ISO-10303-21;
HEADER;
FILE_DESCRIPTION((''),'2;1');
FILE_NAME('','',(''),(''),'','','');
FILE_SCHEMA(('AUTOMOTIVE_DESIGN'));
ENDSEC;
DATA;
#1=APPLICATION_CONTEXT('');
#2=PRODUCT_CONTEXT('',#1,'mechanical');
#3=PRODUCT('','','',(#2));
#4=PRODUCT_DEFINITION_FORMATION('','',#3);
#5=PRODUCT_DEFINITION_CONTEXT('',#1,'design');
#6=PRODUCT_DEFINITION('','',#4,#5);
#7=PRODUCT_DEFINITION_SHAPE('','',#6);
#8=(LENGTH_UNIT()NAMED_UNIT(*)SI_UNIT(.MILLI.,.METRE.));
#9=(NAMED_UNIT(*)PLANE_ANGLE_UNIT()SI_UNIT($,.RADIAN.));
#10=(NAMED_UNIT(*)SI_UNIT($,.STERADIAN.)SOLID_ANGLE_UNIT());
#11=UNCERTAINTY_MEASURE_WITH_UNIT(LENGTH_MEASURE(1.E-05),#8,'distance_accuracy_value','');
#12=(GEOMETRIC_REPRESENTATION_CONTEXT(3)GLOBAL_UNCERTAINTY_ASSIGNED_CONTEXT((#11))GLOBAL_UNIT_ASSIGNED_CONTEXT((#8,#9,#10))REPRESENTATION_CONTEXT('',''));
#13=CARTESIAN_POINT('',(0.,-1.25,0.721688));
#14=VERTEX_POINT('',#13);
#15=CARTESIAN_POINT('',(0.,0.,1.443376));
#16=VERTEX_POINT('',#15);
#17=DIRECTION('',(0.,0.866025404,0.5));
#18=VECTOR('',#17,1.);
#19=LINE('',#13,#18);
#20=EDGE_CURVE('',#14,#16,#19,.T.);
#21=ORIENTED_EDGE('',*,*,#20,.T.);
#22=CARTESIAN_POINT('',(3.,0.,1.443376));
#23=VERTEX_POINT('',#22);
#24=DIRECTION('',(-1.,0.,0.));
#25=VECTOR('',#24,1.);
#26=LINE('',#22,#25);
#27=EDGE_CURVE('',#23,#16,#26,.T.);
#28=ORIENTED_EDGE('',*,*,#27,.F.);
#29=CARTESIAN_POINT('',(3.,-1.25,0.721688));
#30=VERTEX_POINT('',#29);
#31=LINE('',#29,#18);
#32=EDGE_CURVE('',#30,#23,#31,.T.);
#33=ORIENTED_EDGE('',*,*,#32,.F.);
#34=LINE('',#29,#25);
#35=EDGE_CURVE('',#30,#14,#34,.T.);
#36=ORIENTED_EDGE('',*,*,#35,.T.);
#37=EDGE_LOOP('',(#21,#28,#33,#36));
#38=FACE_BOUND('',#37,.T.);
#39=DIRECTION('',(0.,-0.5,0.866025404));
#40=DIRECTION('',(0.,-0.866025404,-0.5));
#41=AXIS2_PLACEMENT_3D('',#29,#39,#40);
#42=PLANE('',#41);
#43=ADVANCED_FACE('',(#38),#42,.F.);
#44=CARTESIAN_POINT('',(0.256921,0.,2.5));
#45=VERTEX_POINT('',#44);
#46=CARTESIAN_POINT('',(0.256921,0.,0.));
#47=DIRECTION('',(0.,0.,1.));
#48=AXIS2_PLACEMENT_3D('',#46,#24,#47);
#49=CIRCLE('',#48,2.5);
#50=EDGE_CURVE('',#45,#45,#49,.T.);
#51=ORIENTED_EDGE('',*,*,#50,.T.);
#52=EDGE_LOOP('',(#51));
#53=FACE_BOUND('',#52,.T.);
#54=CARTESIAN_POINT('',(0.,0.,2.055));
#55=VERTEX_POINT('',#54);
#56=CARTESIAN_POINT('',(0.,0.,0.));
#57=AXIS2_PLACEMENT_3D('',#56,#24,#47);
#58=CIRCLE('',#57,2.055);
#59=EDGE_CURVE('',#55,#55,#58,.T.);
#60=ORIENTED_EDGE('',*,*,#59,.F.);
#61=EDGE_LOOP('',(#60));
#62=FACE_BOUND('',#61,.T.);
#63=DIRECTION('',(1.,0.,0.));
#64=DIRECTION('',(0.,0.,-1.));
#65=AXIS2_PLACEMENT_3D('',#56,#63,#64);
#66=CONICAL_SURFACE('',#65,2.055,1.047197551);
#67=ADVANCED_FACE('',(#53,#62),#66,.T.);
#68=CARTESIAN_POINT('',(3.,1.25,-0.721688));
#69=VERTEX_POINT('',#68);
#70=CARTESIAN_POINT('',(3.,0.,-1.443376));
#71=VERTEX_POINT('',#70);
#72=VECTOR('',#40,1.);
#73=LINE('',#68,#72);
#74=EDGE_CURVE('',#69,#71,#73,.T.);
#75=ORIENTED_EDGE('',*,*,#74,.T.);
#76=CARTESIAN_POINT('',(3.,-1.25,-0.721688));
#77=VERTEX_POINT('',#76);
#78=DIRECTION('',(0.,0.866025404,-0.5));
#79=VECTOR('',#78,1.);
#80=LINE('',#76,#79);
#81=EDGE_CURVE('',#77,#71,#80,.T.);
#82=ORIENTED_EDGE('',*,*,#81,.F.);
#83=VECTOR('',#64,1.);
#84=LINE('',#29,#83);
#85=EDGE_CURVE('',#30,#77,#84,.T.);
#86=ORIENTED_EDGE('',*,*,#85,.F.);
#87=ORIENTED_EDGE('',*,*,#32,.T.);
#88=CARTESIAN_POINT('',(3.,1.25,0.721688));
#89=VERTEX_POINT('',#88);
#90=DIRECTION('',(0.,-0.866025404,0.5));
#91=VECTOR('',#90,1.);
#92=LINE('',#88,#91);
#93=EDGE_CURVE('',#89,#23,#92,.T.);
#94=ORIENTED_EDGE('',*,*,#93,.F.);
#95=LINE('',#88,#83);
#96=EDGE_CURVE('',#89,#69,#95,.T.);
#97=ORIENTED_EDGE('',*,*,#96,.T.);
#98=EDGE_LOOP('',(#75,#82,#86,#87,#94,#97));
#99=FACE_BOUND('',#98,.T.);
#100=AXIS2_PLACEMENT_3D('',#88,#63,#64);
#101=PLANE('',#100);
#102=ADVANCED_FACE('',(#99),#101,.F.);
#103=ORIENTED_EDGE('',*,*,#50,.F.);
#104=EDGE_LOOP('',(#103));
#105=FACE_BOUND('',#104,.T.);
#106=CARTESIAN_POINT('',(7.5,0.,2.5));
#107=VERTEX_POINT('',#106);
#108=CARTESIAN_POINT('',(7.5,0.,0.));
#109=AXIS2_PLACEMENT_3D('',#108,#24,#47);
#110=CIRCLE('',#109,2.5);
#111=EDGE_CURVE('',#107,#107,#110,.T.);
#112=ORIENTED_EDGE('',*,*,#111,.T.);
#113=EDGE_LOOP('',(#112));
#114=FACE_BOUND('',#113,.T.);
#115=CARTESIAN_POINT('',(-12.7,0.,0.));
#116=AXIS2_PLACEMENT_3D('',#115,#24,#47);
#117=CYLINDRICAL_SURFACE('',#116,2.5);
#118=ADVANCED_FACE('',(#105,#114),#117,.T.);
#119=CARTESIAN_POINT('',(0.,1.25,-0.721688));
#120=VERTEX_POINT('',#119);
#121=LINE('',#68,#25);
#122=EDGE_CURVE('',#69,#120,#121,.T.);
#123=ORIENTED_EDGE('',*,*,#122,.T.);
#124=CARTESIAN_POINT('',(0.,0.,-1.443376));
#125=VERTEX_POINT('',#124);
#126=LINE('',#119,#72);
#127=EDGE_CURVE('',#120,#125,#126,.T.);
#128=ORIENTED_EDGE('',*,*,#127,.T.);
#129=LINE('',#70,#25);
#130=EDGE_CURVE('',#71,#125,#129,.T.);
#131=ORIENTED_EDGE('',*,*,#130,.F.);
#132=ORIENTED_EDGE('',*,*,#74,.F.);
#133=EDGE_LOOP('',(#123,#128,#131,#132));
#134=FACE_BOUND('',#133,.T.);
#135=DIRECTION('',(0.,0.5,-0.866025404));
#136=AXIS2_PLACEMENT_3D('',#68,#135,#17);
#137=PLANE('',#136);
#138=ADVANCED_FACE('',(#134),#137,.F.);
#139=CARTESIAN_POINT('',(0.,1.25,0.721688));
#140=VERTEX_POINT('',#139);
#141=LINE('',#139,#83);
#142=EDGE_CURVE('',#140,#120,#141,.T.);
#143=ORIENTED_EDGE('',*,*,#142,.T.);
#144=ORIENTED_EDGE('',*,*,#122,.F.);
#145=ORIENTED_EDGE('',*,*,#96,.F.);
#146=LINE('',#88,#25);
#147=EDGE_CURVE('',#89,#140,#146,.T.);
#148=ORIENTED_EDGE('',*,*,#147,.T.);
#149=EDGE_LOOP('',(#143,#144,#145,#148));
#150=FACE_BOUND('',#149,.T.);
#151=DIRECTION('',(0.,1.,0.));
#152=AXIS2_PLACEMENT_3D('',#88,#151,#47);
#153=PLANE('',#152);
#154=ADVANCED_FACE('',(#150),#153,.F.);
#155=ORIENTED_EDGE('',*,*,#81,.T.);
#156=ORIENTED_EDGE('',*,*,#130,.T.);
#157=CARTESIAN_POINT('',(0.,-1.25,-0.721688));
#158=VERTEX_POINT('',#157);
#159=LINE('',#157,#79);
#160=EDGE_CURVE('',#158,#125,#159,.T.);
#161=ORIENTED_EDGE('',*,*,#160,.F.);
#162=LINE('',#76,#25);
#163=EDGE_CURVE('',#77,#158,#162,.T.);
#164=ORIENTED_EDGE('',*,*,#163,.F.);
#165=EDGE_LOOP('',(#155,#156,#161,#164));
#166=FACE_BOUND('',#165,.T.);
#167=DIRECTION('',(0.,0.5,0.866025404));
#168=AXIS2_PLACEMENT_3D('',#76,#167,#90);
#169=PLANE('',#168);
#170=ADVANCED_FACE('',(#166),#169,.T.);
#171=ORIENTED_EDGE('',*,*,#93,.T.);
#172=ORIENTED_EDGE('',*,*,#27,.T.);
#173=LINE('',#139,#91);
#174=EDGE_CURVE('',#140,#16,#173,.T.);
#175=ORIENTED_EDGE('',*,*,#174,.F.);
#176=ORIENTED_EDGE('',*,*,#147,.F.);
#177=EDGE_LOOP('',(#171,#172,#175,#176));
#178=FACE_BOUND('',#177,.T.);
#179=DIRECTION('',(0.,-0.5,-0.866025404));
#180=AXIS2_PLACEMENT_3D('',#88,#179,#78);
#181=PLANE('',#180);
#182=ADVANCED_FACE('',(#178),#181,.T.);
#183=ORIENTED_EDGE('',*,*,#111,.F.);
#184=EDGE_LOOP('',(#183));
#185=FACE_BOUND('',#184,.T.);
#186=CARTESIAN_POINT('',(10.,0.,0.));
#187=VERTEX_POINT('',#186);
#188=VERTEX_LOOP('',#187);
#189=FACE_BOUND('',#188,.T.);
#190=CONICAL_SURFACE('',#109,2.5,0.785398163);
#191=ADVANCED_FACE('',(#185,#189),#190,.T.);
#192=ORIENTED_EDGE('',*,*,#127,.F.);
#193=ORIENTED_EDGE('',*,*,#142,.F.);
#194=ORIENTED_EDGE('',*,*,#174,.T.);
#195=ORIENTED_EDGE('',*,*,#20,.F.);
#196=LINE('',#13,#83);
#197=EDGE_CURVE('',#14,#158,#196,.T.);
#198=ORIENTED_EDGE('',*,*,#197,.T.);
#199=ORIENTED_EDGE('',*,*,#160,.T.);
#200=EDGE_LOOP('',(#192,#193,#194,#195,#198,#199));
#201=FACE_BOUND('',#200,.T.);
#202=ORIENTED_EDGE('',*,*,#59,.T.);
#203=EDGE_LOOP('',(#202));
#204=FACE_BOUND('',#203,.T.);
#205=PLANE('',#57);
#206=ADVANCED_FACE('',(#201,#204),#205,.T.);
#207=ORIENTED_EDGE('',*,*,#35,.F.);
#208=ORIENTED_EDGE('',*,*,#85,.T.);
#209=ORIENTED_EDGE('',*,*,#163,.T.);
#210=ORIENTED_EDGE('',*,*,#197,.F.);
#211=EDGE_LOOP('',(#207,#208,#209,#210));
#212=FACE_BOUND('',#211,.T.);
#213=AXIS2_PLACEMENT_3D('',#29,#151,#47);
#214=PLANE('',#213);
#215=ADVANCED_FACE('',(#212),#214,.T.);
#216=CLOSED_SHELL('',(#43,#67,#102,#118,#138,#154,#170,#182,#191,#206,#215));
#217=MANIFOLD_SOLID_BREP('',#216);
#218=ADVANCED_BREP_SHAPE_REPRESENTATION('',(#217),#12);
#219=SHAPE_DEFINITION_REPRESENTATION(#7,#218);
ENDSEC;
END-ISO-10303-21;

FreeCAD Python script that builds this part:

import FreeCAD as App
import Part
import Sketcher
from FreeCAD import Vector
Q = App.Units.Quantity


def add_polygon(sketch, points):
    """Adds a closed chain of lines whose ends are joined by coincident constraints."""
    first, n = sketch.GeometryCount, len(points)
    for a, b in zip(points, points[1:] + points[:1]):
        sketch.addGeometry(Part.LineSegment(App.Vector(*a, 0), App.Vector(*b, 0)), False)
    for i in range(n):
        sketch.addConstraint(Sketcher.Constraint("Coincident", first + i, 2, first + (i + 1) % n, 1))

doc = App.newDocument("Part")
body = doc.addObject("PartDesign::Body", "Body")

sketch1 = body.newObject("Sketcher::SketchObject", "Sketch")
sketch1.AttachmentSupport = (doc.getObject("XY_Plane"), [""])
sketch1.MapMode = "FlatFace"
add_polygon(sketch1, [(0, 2.1), (0, 0), (10, 0), (7.5, 2.5), (0.3, 2.5)])
sketch1.addConstraint([
    Sketcher.Constraint("Vertical", 0),
    Sketcher.Constraint("Horizontal", 1),
    Sketcher.Constraint("Horizontal", 3),
    Sketcher.Constraint("Coincident", 0, 2, -1, 1),
    Sketcher.Constraint("DistanceX", 1, 1, 1, 2, 10.0),
    Sketcher.Constraint("Angle", 2, Q("135 deg")),
    Sketcher.Constraint("Angle", 4, Q("-120 deg")),
    Sketcher.Constraint("DistanceX", -1, 1, 2, 2, 7.5),
    Sketcher.Constraint("DistanceY", 0, 2, 0, 1, 2.055),
])
revolution = body.newObject("PartDesign::Revolution", "Revolution")
revolution.Profile = sketch1
revolution.ReferenceAxis = (sketch1, ["H_Axis"])
revolution.Angle = 360

sketch2 = body.newObject("Sketcher::SketchObject", "Sketch001")
sketch2.AttachmentSupport = (doc.getObject("YZ_Plane"), [""])
sketch2.MapMode = "FlatFace"
add_polygon(sketch2, [(1.2, 0.7), (1.2, -0.7), (0, -1.4), (-1.2, -0.7), (-1.2, 0.7), (0, 1.4)])
sketch2.addConstraint([
    Sketcher.Constraint("Vertical", 0),
    Sketcher.Constraint("Vertical", 3),
    Sketcher.Constraint("Symmetric", 0, 2, 3, 2, -1, 1),
    Sketcher.Constraint("Symmetric", 1, 2, 4, 2, -1, 1),
    Sketcher.Constraint("PointOnObject", 1, 2, -2),
    Sketcher.Constraint("Parallel", 2, 5),
    Sketcher.Constraint("Horizontal", 0, 2, 2, 2),
    Sketcher.Constraint("Angle", 1, Q("-150 deg")),
    Sketcher.Constraint("DistanceX", 2, 2, 0, 2, 2.5),
    Sketcher.Constraint("DistanceY", 0, 2, 0, 1, 1.443376),
])
pocket1 = body.newObject("PartDesign::Pocket", "Pocket")
pocket1.Profile = sketch2
pocket1.Length = 3
pocket1.Reversed = True

doc.recompute()
